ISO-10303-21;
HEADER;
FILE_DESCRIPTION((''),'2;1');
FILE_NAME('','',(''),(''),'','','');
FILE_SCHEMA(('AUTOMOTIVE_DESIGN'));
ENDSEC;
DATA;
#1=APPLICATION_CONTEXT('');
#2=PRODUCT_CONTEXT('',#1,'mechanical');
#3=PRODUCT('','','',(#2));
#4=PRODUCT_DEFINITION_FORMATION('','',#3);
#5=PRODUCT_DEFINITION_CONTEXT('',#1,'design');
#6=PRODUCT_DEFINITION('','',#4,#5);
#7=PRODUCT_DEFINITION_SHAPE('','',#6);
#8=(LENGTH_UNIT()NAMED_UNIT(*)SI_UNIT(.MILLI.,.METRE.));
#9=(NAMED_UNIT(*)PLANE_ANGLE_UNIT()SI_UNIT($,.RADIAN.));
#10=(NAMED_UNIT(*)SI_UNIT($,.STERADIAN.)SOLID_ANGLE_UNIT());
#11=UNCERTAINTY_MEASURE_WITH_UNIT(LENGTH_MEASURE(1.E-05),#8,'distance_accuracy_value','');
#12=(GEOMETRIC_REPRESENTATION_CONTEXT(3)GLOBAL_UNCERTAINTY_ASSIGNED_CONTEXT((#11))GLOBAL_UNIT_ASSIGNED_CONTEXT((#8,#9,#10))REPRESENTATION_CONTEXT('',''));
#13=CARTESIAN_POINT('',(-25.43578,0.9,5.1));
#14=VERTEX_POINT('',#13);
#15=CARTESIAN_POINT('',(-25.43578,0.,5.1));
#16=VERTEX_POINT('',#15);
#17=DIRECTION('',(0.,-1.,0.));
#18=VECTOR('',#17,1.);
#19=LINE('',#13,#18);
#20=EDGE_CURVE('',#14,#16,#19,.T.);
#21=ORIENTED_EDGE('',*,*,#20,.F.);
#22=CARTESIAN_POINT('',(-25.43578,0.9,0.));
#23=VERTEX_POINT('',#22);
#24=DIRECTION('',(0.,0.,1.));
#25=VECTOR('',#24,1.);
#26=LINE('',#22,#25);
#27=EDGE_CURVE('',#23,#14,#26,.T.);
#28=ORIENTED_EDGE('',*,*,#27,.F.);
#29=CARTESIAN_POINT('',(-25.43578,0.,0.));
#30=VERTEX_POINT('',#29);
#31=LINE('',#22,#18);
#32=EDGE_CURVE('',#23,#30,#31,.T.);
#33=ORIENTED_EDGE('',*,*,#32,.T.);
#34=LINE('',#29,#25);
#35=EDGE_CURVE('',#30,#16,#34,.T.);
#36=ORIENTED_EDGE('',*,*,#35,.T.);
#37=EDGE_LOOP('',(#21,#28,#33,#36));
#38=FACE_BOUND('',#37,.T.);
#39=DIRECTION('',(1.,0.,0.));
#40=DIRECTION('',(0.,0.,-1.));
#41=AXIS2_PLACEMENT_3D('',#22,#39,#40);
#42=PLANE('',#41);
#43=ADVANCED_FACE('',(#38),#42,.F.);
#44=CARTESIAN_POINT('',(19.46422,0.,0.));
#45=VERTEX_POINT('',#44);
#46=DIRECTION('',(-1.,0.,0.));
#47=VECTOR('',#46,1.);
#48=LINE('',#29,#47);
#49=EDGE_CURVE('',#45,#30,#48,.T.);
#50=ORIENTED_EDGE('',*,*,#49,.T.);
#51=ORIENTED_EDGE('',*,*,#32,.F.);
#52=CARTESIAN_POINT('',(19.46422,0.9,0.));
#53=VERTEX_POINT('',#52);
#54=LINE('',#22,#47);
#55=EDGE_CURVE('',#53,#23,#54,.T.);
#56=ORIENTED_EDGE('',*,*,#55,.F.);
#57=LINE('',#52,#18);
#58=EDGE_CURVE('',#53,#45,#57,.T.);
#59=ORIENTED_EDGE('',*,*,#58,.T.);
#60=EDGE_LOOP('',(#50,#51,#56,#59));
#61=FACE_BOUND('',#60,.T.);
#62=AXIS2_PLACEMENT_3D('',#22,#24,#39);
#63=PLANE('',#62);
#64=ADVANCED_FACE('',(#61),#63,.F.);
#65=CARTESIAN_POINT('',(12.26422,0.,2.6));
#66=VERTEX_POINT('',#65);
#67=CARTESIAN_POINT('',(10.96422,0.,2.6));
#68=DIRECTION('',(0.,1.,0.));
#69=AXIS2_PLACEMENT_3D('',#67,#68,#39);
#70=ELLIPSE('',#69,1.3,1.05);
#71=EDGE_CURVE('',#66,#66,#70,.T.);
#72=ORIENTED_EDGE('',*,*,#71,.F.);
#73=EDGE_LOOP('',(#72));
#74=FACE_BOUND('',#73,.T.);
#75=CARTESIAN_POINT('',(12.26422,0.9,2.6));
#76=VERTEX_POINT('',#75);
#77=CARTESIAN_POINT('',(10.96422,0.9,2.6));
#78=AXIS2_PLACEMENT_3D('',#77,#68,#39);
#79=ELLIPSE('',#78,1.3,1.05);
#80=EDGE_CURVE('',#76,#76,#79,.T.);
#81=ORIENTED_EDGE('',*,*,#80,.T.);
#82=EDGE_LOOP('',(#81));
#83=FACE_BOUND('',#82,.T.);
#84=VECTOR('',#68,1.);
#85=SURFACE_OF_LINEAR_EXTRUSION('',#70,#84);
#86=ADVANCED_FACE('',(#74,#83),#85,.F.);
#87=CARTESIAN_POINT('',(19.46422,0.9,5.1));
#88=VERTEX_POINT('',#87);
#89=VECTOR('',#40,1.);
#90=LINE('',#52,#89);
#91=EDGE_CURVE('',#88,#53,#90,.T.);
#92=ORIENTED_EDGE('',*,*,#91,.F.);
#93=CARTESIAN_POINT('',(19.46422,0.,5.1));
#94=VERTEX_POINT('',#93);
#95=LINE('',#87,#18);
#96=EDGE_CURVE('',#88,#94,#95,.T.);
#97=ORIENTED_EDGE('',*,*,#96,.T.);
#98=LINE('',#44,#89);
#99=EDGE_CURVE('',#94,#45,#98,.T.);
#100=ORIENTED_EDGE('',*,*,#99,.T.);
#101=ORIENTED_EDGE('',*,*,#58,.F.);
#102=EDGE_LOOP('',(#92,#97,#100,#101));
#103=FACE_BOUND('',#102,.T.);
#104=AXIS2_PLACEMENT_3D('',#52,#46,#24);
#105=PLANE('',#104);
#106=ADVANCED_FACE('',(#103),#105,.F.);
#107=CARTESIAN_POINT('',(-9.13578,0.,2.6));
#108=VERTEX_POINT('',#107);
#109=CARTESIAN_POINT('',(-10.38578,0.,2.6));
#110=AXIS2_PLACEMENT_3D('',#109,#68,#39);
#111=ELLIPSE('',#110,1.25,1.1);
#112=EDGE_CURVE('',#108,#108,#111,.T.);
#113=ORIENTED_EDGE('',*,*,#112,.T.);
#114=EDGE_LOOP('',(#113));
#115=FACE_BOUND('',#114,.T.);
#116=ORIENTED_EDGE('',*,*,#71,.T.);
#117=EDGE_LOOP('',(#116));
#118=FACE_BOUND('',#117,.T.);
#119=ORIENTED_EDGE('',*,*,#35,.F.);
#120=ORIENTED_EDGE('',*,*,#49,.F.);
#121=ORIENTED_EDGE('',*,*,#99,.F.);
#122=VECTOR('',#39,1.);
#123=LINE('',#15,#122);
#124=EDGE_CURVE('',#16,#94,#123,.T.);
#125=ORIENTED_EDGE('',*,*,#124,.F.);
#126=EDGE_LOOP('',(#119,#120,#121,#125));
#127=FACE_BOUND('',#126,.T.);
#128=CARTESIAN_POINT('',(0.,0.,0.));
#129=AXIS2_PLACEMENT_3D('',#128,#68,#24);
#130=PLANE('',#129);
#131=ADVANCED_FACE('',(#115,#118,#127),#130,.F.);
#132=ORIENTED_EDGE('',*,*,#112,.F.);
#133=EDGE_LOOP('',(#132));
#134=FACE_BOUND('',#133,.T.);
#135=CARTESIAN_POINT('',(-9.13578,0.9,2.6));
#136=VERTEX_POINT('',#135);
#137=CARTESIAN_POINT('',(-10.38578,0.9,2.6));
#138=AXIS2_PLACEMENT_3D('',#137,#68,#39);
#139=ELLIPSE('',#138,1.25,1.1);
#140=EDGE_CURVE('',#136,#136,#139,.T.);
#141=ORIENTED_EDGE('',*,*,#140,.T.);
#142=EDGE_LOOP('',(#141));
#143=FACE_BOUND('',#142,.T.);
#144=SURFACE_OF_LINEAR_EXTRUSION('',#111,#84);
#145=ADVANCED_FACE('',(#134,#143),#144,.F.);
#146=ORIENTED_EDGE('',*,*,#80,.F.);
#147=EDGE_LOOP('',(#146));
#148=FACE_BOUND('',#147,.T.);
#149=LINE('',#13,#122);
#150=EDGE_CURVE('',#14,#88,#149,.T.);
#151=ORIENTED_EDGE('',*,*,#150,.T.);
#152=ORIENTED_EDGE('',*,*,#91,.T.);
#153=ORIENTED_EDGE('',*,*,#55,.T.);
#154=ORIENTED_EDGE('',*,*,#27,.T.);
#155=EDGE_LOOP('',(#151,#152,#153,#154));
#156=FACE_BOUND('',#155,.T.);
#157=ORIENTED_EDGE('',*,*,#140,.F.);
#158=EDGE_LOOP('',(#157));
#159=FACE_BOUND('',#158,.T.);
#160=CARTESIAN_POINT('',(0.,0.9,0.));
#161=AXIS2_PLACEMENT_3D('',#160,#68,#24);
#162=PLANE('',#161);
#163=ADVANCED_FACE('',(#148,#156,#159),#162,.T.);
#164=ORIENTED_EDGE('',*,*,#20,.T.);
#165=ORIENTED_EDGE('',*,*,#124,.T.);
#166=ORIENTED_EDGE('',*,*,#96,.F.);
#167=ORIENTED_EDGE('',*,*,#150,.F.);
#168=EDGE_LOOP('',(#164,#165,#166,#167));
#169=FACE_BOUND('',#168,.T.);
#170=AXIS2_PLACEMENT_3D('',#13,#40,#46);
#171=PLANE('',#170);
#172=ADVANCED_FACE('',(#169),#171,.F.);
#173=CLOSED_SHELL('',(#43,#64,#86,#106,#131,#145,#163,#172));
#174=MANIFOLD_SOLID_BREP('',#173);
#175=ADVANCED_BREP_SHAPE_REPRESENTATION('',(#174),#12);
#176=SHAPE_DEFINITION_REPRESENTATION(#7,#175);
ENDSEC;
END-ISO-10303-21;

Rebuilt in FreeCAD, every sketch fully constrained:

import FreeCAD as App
import Part
import Sketcher
Q = App.Units.Quantity


def add_polygon(sketch, points):
    """Adds a closed chain of lines whose ends are joined by coincident constraints."""
    first, n = sketch.GeometryCount, len(points)
    for a, b in zip(points, points[1:] + points[:1]):
        sketch.addGeometry(Part.LineSegment(App.Vector(*a, 0), App.Vector(*b, 0)), False)
    for i in range(n):
        sketch.addConstraint(Sketcher.Constraint("Coincident", first + i, 2, first + (i + 1) % n, 1))

doc = App.newDocument("Part")
body = doc.addObject("PartDesign::Body", "Body")

sketch1 = body.newObject("Sketcher::SketchObject", "Sketch")
sketch1.AttachmentSupport = (doc.getObject("XZ_Plane"), [""])
sketch1.MapMode = "FlatFace"
add_polygon(sketch1, [(-25.43578, 0), (-25.43578, 5.1), (19.46422, 5.1), (19.46422, 0)])
sketch1.addConstraint(Sketcher.Constraint("Vertical", 0))
sketch1.addConstraint(Sketcher.Constraint("Horizontal", 1))
sketch1.addConstraint(Sketcher.Constraint("Vertical", 2))
sketch1.addConstraint(Sketcher.Constraint("Horizontal", 3))
sketch1.addConstraint(Sketcher.Constraint("PointOnObject", 2, 2, -1))
sketch1.addConstraint(Sketcher.Constraint("DistanceX", 1, 1, 1, 2, Q("44.9 mm")))
sketch1.addConstraint(Sketcher.Constraint("DistanceY", 0, 1, 0, 2, Q("5.1 mm")))
sketch1.addConstraint(Sketcher.Constraint("DistanceX", 0, 2, -1, 1, Q("25.43578 mm")))
pad1 = body.newObject("PartDesign::Pad", "Pad")
pad1.Profile = sketch1
pad1.Length = 0.9
pad1.Reversed = True

sketch2 = body.newObject("Sketcher::SketchObject", "Sketch001")
sketch2.AttachmentSupport = (doc.getObject("XZ_Plane"), [""])
sketch2.MapMode = "FlatFace"
sketch2.AttachmentOffset = App.Placement(App.Vector(0, 0, -0.9), App.Rotation())
sketch2.addGeometry(Part.Ellipse(App.Vector(-9.13578, 2.6, 0), App.Vector(-10.38578, 3.7, 0), App.Vector(-10.38578, 2.6, 0)), False)
sketch2.addGeometry(Part.Ellipse(App.Vector(9.66422, 2.6, 0), App.Vector(10.96422, 1.55, 0), App.Vector(10.96422, 2.6, 0)), False)
sketch2.addConstraint(Sketcher.Constraint("Block", 0))
sketch2.addConstraint(Sketcher.Constraint("Block", 1))
pocket1 = body.newObject("PartDesign::Pocket", "Pocket")
pocket1.Profile = sketch2
pocket1.Length = 0.9
pocket1.Reversed = True

doc.recompute()
